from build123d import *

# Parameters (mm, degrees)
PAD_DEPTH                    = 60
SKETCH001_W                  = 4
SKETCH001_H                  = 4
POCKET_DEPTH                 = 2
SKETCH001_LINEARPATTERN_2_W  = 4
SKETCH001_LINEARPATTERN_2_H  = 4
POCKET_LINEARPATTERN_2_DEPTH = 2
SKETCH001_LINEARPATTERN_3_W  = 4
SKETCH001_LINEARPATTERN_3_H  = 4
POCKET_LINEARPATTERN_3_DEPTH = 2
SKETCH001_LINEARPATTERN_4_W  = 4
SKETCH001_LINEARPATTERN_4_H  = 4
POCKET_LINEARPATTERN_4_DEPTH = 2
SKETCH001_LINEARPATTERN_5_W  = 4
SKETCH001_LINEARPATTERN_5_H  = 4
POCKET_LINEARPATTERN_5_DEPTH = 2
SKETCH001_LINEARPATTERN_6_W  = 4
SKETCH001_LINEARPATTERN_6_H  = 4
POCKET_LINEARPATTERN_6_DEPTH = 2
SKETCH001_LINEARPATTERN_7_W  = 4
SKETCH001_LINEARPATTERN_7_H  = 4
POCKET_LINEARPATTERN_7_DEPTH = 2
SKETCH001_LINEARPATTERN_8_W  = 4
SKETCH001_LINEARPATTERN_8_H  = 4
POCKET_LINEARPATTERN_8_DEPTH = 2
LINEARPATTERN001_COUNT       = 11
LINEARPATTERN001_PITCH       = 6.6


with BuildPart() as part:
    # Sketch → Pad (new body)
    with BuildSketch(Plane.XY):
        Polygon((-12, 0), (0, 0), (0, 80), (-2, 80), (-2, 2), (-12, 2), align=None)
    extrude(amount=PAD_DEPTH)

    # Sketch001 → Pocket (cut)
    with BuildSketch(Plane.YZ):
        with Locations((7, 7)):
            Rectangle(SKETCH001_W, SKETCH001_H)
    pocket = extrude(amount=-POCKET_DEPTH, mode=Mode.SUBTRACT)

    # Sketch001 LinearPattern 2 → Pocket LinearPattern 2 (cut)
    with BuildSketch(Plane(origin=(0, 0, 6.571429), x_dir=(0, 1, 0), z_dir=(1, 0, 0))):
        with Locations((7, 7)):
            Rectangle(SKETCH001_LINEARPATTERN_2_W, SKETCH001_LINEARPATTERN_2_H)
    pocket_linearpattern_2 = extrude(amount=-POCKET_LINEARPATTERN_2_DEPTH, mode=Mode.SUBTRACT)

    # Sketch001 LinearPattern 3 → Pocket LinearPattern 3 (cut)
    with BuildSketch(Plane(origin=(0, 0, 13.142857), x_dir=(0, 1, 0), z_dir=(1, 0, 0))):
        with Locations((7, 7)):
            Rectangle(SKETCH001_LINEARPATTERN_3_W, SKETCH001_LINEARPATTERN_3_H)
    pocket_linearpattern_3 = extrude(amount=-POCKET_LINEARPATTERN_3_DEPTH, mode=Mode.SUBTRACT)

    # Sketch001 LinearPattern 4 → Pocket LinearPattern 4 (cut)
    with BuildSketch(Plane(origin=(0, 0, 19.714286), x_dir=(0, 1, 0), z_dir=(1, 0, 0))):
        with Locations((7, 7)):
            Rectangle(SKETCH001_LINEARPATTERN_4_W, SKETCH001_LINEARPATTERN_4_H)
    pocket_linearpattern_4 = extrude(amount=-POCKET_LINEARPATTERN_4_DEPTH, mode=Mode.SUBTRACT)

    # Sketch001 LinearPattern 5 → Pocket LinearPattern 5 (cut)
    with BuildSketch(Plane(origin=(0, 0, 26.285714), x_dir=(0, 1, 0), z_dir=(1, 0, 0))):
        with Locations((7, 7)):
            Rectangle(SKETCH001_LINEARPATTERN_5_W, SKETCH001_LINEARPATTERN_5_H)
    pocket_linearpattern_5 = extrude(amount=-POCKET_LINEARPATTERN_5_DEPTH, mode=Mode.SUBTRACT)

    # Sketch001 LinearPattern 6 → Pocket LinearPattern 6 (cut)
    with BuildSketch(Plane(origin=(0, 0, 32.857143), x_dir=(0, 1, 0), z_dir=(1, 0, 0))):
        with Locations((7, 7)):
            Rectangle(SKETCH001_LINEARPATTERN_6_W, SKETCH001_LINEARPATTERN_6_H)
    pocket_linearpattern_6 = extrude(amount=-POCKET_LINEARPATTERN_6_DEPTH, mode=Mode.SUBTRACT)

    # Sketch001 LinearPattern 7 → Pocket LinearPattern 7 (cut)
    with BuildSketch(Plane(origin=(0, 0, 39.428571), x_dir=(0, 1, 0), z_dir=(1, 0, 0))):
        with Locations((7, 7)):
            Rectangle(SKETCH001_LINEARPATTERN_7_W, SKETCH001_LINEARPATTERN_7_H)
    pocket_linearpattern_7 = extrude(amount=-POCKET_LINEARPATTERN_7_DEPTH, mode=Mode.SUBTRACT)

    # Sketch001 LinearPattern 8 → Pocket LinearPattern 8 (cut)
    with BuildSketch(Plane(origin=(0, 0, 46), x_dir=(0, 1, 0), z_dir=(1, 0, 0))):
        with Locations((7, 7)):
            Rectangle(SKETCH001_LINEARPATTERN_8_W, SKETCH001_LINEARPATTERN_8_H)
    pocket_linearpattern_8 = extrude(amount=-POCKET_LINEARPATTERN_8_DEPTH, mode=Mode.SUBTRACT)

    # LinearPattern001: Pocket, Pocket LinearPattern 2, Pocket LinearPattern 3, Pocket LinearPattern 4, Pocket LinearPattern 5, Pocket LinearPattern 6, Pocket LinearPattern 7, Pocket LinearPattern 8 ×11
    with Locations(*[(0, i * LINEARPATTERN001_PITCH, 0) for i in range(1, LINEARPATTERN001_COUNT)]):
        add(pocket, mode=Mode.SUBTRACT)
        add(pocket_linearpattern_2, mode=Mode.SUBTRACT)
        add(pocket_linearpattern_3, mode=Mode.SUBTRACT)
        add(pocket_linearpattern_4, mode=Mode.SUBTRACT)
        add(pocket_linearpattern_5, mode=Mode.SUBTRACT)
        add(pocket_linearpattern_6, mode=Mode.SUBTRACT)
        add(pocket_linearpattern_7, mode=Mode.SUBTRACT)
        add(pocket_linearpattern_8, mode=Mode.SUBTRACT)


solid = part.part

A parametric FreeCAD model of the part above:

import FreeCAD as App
import Part
import Sketcher
from FreeCAD import Vector
Q = App.Units.Quantity


def add_polygon(sketch, points):
    """Adds a closed chain of lines whose ends are joined by coincident constraints."""
    first, n = sketch.GeometryCount, len(points)
    for a, b in zip(points, points[1:] + points[:1]):
        sketch.addGeometry(Part.LineSegment(App.Vector(*a, 0), App.Vector(*b, 0)), False)
    for i in range(n):
        sketch.addConstraint(Sketcher.Constraint("Coincident", first + i, 2, first + (i + 1) % n, 1))

doc = App.newDocument("Part")
body = doc.addObject("PartDesign::Body", "Body")

sketch1 = body.newObject("Sketcher::SketchObject", "Sketch")
sketch1.AttachmentSupport = (doc.getObject("XY_Plane"), [""])
sketch1.MapMode = "FlatFace"
add_polygon(sketch1, [(-12, 0), (0, 0), (0, 80), (-2, 80), (-2, 2), (-12, 2)])
sketch1.addConstraint(Sketcher.Constraint("Horizontal", 0))
sketch1.addConstraint(Sketcher.Constraint("Vertical", 1))
sketch1.addConstraint(Sketcher.Constraint("Horizontal", 2))
sketch1.addConstraint(Sketcher.Constraint("Vertical", 3))
sketch1.addConstraint(Sketcher.Constraint("Horizontal", 4))
sketch1.addConstraint(Sketcher.Constraint("Vertical", 5))
sketch1.addConstraint(Sketcher.Constraint("Coincident", 0, 2, -1, 1))
sketch1.addConstraint(Sketcher.Constraint("Equal", 2, 5))
sketch1.addConstraint(Sketcher.Constraint("DistanceX", 0, 1, 0, 2, Q("12 mm")))
sketch1.addConstraint(Sketcher.Constraint("DistanceX", 2, 2, 2, 1, Q("2 mm")))
sketch1.addConstraint(Sketcher.Constraint("DistanceY", 1, 1, 1, 2, Q("80 mm")))
pad1 = body.newObject("PartDesign::Pad", "Pad")
pad1.Profile = sketch1
pad1.Length = 60

sketch2 = body.newObject("Sketcher::SketchObject", "Sketch001")
sketch2.AttachmentSupport = (doc.getObject("YZ_Plane"), [""])
sketch2.MapMode = "FlatFace"
add_polygon(sketch2, [(5, 9), (5, 5), (9, 5), (9, 9)])
sketch2.addConstraint(Sketcher.Constraint("Vertical", 0))
sketch2.addConstraint(Sketcher.Constraint("Horizontal", 1))
sketch2.addConstraint(Sketcher.Constraint("Vertical", 2))
sketch2.addConstraint(Sketcher.Constraint("Horizontal", 3))
sketch2.addConstraint(Sketcher.Constraint("Equal", 3, 0))
sketch2.addConstraint(Sketcher.Constraint("DistanceX", 1, 1, 1, 2, Q("4 mm")))
sketch2.addConstraint(Sketcher.Constraint("DistanceX", -1, 1, 0, 2, Q("5 mm")))
sketch2.addConstraint(Sketcher.Constraint("DistanceY", -1, 1, 0, 2, Q("5 mm")))
pocket1 = body.newObject("PartDesign::Pocket", "Pocket")
pocket1.Profile = sketch2
pocket1.Length = 2

sketch3 = body.newObject("Sketcher::SketchObject", "Sketch002")
sketch3.AttachmentSupport = (doc.getObject("YZ_Plane"), [""])
sketch3.MapMode = "FlatFace"
add_polygon(sketch3, [(5, 15.6), (5, 11.6), (9, 11.6), (9, 15.6)])
sketch3.addConstraint(Sketcher.Constraint("Vertical", 0))
sketch3.addConstraint(Sketcher.Constraint("Horizontal", 1))
sketch3.addConstraint(Sketcher.Constraint("Vertical", 2))
sketch3.addConstraint(Sketcher.Constraint("Horizontal", 3))
sketch3.addConstraint(Sketcher.Constraint("Equal", 3, 0))
sketch3.addConstraint(Sketcher.Constraint("DistanceX", 1, 1, 1, 2, Q("4 mm")))
sketch3.addConstraint(Sketcher.Constraint("DistanceX", -1, 1, 0, 2, Q("5 mm")))
sketch3.addConstraint(Sketcher.Constraint("DistanceY", -1, 1, 0, 2, Q("11.571429 mm")))
pocket2 = body.newObject("PartDesign::Pocket", "Pocket001")
pocket2.Profile = sketch3
pocket2.Length = 2

sketch4 = body.newObject("Sketcher::SketchObject", "Sketch003")
sketch4.AttachmentSupport = (doc.getObject("YZ_Plane"), [""])
sketch4.MapMode = "FlatFace"
add_polygon(sketch4, [(5, 22.1), (5, 18.1), (9, 18.1), (9, 22.1)])
sketch4.addConstraint(Sketcher.Constraint("Vertical", 0))
sketch4.addConstraint(Sketcher.Constraint("Horizontal", 1))
sketch4.addConstraint(Sketcher.Constraint("Vertical", 2))
sketch4.addConstraint(Sketcher.Constraint("Horizontal", 3))
sketch4.addConstraint(Sketcher.Constraint("Equal", 3, 0))
sketch4.addConstraint(Sketcher.Constraint("DistanceX", 1, 1, 1, 2, Q("4 mm")))
sketch4.addConstraint(Sketcher.Constraint("DistanceX", -1, 1, 0, 2, Q("5 mm")))
sketch4.addConstraint(Sketcher.Constraint("DistanceY", -1, 1, 0, 2, Q("18.142857 mm")))
pocket3 = body.newObject("PartDesign::Pocket", "Pocket002")
pocket3.Profile = sketch4
pocket3.Length = 2

sketch5 = body.newObject("Sketcher::SketchObject", "Sketch004")
sketch5.AttachmentSupport = (doc.getObject("YZ_Plane"), [""])
sketch5.MapMode = "FlatFace"
add_polygon(sketch5, [(5, 28.7), (5, 24.7), (9, 24.7), (9, 28.7)])
sketch5.addConstraint(Sketcher.Constraint("Vertical", 0))
sketch5.addConstraint(Sketcher.Constraint("Horizontal", 1))
sketch5.addConstraint(Sketcher.Constraint("Vertical", 2))
sketch5.addConstraint(Sketcher.Constraint("Horizontal", 3))
sketch5.addConstraint(Sketcher.Constraint("Equal", 3, 0))
sketch5.addConstraint(Sketcher.Constraint("DistanceX", 1, 1, 1, 2, Q("4 mm")))
sketch5.addConstraint(Sketcher.Constraint("DistanceX", -1, 1, 0, 2, Q("5 mm")))
sketch5.addConstraint(Sketcher.Constraint("DistanceY", -1, 1, 0, 2, Q("24.714286 mm")))
pocket4 = body.newObject("PartDesign::Pocket", "Pocket003")
pocket4.Profile = sketch5
pocket4.Length = 2

sketch6 = body.newObject("Sketcher::SketchObject", "Sketch005")
sketch6.AttachmentSupport = (doc.getObject("YZ_Plane"), [""])
sketch6.MapMode = "FlatFace"
add_polygon(sketch6, [(5, 35.3), (5, 31.3), (9, 31.3), (9, 35.3)])
sketch6.addConstraint(Sketcher.Constraint("Vertical", 0))
sketch6.addConstraint(Sketcher.Constraint("Horizontal", 1))
sketch6.addConstraint(Sketcher.Constraint("Vertical", 2))
sketch6.addConstraint(Sketcher.Constraint("Horizontal", 3))
sketch6.addConstraint(Sketcher.Constraint("Equal", 3, 0))
sketch6.addConstraint(Sketcher.Constraint("DistanceX", 1, 1, 1, 2, Q("4 mm")))
sketch6.addConstraint(Sketcher.Constraint("DistanceX", -1, 1, 0, 2, Q("5 mm")))
sketch6.addConstraint(Sketcher.Constraint("DistanceY", -1, 1, 0, 2, Q("31.285714 mm")))
pocket5 = body.newObject("PartDesign::Pocket", "Pocket004")
pocket5.Profile = sketch6
pocket5.Length = 2

sketch7 = body.newObject("Sketcher::SketchObject", "Sketch006")
sketch7.AttachmentSupport = (doc.getObject("YZ_Plane"), [""])
sketch7.MapMode = "FlatFace"
add_polygon(sketch7, [(5, 41.9), (5, 37.9), (9, 37.9), (9, 41.9)])
sketch7.addConstraint(Sketcher.Constraint("Vertical", 0))
sketch7.addConstraint(Sketcher.Constraint("Horizontal", 1))
sketch7.addConstraint(Sketcher.Constraint("Vertical", 2))
sketch7.addConstraint(Sketcher.Constraint("Horizontal", 3))
sketch7.addConstraint(Sketcher.Constraint("Equal", 3, 0))
sketch7.addConstraint(Sketcher.Constraint("DistanceX", 1, 1, 1, 2, Q("4 mm")))
sketch7.addConstraint(Sketcher.Constraint("DistanceX", -1, 1, 0, 2, Q("5 mm")))
sketch7.addConstraint(Sketcher.Constraint("DistanceY", -1, 1, 0, 2, Q("37.857143 mm")))
pocket6 = body.newObject("PartDesign::Pocket", "Pocket005")
pocket6.Profile = sketch7
pocket6.Length = 2

sketch8 = body.newObject("Sketcher::SketchObject", "Sketch007")
sketch8.AttachmentSupport = (doc.getObject("YZ_Plane"), [""])
sketch8.MapMode = "FlatFace"
add_polygon(sketch8, [(5, 48.4), (5, 44.4), (9, 44.4), (9, 48.4)])
sketch8.addConstraint(Sketcher.Constraint("Vertical", 0))
sketch8.addConstraint(Sketcher.Constraint("Horizontal", 1))
sketch8.addConstraint(Sketcher.Constraint("Vertical", 2))
sketch8.addConstraint(Sketcher.Constraint("Horizontal", 3))
sketch8.addConstraint(Sketcher.Constraint("Equal", 3, 0))
sketch8.addConstraint(Sketcher.Constraint("DistanceX", 1, 1, 1, 2, Q("4 mm")))
sketch8.addConstraint(Sketcher.Constraint("DistanceX", -1, 1, 0, 2, Q("5 mm")))
sketch8.addConstraint(Sketcher.Constraint("DistanceY", -1, 1, 0, 2, Q("44.428571 mm")))
pocket7 = body.newObject("PartDesign::Pocket", "Pocket006")
pocket7.Profile = sketch8
pocket7.Length = 2

sketch9 = body.newObject("Sketcher::SketchObject", "Sketch008")
sketch9.AttachmentSupport = (doc.getObject("YZ_Plane"), [""])
sketch9.MapMode = "FlatFace"
add_polygon(sketch9, [(5, 55), (5, 51), (9, 51), (9, 55)])
sketch9.addConstraint(Sketcher.Constraint("Vertical", 0))
sketch9.addConstraint(Sketcher.Constraint("Horizontal", 1))
sketch9.addConstraint(Sketcher.Constraint("Vertical", 2))
sketch9.addConstraint(Sketcher.Constraint("Horizontal", 3))
sketch9.addConstraint(Sketcher.Constraint("Equal", 3, 0))
sketch9.addConstraint(Sketcher.Constraint("DistanceX", 1, 1, 1, 2, Q("4 mm")))
sketch9.addConstraint(Sketcher.Constraint("DistanceX", -1, 1, 0, 2, Q("5 mm")))
sketch9.addConstraint(Sketcher.Constraint("DistanceY", -1, 1, 0, 2, Q("51 mm")))
pocket8 = body.newObject("PartDesign::Pocket", "Pocket007")
pocket8.Profile = sketch9
pocket8.Length = 2
doc.recompute()

linearpattern = body.newObject("PartDesign::LinearPattern", "LinearPattern")
linearpattern.Originals = [pocket1, pocket2, pocket3, pocket4, pocket5, pocket6, pocket7, pocket8]
linearpattern.Direction = (doc.getObject("Y_Axis"), [""])
linearpattern.Mode = "offset"
linearpattern.Offset = 6.6
linearpattern.Occurrences = 11
body.Tip = linearpattern

doc.recompute()
